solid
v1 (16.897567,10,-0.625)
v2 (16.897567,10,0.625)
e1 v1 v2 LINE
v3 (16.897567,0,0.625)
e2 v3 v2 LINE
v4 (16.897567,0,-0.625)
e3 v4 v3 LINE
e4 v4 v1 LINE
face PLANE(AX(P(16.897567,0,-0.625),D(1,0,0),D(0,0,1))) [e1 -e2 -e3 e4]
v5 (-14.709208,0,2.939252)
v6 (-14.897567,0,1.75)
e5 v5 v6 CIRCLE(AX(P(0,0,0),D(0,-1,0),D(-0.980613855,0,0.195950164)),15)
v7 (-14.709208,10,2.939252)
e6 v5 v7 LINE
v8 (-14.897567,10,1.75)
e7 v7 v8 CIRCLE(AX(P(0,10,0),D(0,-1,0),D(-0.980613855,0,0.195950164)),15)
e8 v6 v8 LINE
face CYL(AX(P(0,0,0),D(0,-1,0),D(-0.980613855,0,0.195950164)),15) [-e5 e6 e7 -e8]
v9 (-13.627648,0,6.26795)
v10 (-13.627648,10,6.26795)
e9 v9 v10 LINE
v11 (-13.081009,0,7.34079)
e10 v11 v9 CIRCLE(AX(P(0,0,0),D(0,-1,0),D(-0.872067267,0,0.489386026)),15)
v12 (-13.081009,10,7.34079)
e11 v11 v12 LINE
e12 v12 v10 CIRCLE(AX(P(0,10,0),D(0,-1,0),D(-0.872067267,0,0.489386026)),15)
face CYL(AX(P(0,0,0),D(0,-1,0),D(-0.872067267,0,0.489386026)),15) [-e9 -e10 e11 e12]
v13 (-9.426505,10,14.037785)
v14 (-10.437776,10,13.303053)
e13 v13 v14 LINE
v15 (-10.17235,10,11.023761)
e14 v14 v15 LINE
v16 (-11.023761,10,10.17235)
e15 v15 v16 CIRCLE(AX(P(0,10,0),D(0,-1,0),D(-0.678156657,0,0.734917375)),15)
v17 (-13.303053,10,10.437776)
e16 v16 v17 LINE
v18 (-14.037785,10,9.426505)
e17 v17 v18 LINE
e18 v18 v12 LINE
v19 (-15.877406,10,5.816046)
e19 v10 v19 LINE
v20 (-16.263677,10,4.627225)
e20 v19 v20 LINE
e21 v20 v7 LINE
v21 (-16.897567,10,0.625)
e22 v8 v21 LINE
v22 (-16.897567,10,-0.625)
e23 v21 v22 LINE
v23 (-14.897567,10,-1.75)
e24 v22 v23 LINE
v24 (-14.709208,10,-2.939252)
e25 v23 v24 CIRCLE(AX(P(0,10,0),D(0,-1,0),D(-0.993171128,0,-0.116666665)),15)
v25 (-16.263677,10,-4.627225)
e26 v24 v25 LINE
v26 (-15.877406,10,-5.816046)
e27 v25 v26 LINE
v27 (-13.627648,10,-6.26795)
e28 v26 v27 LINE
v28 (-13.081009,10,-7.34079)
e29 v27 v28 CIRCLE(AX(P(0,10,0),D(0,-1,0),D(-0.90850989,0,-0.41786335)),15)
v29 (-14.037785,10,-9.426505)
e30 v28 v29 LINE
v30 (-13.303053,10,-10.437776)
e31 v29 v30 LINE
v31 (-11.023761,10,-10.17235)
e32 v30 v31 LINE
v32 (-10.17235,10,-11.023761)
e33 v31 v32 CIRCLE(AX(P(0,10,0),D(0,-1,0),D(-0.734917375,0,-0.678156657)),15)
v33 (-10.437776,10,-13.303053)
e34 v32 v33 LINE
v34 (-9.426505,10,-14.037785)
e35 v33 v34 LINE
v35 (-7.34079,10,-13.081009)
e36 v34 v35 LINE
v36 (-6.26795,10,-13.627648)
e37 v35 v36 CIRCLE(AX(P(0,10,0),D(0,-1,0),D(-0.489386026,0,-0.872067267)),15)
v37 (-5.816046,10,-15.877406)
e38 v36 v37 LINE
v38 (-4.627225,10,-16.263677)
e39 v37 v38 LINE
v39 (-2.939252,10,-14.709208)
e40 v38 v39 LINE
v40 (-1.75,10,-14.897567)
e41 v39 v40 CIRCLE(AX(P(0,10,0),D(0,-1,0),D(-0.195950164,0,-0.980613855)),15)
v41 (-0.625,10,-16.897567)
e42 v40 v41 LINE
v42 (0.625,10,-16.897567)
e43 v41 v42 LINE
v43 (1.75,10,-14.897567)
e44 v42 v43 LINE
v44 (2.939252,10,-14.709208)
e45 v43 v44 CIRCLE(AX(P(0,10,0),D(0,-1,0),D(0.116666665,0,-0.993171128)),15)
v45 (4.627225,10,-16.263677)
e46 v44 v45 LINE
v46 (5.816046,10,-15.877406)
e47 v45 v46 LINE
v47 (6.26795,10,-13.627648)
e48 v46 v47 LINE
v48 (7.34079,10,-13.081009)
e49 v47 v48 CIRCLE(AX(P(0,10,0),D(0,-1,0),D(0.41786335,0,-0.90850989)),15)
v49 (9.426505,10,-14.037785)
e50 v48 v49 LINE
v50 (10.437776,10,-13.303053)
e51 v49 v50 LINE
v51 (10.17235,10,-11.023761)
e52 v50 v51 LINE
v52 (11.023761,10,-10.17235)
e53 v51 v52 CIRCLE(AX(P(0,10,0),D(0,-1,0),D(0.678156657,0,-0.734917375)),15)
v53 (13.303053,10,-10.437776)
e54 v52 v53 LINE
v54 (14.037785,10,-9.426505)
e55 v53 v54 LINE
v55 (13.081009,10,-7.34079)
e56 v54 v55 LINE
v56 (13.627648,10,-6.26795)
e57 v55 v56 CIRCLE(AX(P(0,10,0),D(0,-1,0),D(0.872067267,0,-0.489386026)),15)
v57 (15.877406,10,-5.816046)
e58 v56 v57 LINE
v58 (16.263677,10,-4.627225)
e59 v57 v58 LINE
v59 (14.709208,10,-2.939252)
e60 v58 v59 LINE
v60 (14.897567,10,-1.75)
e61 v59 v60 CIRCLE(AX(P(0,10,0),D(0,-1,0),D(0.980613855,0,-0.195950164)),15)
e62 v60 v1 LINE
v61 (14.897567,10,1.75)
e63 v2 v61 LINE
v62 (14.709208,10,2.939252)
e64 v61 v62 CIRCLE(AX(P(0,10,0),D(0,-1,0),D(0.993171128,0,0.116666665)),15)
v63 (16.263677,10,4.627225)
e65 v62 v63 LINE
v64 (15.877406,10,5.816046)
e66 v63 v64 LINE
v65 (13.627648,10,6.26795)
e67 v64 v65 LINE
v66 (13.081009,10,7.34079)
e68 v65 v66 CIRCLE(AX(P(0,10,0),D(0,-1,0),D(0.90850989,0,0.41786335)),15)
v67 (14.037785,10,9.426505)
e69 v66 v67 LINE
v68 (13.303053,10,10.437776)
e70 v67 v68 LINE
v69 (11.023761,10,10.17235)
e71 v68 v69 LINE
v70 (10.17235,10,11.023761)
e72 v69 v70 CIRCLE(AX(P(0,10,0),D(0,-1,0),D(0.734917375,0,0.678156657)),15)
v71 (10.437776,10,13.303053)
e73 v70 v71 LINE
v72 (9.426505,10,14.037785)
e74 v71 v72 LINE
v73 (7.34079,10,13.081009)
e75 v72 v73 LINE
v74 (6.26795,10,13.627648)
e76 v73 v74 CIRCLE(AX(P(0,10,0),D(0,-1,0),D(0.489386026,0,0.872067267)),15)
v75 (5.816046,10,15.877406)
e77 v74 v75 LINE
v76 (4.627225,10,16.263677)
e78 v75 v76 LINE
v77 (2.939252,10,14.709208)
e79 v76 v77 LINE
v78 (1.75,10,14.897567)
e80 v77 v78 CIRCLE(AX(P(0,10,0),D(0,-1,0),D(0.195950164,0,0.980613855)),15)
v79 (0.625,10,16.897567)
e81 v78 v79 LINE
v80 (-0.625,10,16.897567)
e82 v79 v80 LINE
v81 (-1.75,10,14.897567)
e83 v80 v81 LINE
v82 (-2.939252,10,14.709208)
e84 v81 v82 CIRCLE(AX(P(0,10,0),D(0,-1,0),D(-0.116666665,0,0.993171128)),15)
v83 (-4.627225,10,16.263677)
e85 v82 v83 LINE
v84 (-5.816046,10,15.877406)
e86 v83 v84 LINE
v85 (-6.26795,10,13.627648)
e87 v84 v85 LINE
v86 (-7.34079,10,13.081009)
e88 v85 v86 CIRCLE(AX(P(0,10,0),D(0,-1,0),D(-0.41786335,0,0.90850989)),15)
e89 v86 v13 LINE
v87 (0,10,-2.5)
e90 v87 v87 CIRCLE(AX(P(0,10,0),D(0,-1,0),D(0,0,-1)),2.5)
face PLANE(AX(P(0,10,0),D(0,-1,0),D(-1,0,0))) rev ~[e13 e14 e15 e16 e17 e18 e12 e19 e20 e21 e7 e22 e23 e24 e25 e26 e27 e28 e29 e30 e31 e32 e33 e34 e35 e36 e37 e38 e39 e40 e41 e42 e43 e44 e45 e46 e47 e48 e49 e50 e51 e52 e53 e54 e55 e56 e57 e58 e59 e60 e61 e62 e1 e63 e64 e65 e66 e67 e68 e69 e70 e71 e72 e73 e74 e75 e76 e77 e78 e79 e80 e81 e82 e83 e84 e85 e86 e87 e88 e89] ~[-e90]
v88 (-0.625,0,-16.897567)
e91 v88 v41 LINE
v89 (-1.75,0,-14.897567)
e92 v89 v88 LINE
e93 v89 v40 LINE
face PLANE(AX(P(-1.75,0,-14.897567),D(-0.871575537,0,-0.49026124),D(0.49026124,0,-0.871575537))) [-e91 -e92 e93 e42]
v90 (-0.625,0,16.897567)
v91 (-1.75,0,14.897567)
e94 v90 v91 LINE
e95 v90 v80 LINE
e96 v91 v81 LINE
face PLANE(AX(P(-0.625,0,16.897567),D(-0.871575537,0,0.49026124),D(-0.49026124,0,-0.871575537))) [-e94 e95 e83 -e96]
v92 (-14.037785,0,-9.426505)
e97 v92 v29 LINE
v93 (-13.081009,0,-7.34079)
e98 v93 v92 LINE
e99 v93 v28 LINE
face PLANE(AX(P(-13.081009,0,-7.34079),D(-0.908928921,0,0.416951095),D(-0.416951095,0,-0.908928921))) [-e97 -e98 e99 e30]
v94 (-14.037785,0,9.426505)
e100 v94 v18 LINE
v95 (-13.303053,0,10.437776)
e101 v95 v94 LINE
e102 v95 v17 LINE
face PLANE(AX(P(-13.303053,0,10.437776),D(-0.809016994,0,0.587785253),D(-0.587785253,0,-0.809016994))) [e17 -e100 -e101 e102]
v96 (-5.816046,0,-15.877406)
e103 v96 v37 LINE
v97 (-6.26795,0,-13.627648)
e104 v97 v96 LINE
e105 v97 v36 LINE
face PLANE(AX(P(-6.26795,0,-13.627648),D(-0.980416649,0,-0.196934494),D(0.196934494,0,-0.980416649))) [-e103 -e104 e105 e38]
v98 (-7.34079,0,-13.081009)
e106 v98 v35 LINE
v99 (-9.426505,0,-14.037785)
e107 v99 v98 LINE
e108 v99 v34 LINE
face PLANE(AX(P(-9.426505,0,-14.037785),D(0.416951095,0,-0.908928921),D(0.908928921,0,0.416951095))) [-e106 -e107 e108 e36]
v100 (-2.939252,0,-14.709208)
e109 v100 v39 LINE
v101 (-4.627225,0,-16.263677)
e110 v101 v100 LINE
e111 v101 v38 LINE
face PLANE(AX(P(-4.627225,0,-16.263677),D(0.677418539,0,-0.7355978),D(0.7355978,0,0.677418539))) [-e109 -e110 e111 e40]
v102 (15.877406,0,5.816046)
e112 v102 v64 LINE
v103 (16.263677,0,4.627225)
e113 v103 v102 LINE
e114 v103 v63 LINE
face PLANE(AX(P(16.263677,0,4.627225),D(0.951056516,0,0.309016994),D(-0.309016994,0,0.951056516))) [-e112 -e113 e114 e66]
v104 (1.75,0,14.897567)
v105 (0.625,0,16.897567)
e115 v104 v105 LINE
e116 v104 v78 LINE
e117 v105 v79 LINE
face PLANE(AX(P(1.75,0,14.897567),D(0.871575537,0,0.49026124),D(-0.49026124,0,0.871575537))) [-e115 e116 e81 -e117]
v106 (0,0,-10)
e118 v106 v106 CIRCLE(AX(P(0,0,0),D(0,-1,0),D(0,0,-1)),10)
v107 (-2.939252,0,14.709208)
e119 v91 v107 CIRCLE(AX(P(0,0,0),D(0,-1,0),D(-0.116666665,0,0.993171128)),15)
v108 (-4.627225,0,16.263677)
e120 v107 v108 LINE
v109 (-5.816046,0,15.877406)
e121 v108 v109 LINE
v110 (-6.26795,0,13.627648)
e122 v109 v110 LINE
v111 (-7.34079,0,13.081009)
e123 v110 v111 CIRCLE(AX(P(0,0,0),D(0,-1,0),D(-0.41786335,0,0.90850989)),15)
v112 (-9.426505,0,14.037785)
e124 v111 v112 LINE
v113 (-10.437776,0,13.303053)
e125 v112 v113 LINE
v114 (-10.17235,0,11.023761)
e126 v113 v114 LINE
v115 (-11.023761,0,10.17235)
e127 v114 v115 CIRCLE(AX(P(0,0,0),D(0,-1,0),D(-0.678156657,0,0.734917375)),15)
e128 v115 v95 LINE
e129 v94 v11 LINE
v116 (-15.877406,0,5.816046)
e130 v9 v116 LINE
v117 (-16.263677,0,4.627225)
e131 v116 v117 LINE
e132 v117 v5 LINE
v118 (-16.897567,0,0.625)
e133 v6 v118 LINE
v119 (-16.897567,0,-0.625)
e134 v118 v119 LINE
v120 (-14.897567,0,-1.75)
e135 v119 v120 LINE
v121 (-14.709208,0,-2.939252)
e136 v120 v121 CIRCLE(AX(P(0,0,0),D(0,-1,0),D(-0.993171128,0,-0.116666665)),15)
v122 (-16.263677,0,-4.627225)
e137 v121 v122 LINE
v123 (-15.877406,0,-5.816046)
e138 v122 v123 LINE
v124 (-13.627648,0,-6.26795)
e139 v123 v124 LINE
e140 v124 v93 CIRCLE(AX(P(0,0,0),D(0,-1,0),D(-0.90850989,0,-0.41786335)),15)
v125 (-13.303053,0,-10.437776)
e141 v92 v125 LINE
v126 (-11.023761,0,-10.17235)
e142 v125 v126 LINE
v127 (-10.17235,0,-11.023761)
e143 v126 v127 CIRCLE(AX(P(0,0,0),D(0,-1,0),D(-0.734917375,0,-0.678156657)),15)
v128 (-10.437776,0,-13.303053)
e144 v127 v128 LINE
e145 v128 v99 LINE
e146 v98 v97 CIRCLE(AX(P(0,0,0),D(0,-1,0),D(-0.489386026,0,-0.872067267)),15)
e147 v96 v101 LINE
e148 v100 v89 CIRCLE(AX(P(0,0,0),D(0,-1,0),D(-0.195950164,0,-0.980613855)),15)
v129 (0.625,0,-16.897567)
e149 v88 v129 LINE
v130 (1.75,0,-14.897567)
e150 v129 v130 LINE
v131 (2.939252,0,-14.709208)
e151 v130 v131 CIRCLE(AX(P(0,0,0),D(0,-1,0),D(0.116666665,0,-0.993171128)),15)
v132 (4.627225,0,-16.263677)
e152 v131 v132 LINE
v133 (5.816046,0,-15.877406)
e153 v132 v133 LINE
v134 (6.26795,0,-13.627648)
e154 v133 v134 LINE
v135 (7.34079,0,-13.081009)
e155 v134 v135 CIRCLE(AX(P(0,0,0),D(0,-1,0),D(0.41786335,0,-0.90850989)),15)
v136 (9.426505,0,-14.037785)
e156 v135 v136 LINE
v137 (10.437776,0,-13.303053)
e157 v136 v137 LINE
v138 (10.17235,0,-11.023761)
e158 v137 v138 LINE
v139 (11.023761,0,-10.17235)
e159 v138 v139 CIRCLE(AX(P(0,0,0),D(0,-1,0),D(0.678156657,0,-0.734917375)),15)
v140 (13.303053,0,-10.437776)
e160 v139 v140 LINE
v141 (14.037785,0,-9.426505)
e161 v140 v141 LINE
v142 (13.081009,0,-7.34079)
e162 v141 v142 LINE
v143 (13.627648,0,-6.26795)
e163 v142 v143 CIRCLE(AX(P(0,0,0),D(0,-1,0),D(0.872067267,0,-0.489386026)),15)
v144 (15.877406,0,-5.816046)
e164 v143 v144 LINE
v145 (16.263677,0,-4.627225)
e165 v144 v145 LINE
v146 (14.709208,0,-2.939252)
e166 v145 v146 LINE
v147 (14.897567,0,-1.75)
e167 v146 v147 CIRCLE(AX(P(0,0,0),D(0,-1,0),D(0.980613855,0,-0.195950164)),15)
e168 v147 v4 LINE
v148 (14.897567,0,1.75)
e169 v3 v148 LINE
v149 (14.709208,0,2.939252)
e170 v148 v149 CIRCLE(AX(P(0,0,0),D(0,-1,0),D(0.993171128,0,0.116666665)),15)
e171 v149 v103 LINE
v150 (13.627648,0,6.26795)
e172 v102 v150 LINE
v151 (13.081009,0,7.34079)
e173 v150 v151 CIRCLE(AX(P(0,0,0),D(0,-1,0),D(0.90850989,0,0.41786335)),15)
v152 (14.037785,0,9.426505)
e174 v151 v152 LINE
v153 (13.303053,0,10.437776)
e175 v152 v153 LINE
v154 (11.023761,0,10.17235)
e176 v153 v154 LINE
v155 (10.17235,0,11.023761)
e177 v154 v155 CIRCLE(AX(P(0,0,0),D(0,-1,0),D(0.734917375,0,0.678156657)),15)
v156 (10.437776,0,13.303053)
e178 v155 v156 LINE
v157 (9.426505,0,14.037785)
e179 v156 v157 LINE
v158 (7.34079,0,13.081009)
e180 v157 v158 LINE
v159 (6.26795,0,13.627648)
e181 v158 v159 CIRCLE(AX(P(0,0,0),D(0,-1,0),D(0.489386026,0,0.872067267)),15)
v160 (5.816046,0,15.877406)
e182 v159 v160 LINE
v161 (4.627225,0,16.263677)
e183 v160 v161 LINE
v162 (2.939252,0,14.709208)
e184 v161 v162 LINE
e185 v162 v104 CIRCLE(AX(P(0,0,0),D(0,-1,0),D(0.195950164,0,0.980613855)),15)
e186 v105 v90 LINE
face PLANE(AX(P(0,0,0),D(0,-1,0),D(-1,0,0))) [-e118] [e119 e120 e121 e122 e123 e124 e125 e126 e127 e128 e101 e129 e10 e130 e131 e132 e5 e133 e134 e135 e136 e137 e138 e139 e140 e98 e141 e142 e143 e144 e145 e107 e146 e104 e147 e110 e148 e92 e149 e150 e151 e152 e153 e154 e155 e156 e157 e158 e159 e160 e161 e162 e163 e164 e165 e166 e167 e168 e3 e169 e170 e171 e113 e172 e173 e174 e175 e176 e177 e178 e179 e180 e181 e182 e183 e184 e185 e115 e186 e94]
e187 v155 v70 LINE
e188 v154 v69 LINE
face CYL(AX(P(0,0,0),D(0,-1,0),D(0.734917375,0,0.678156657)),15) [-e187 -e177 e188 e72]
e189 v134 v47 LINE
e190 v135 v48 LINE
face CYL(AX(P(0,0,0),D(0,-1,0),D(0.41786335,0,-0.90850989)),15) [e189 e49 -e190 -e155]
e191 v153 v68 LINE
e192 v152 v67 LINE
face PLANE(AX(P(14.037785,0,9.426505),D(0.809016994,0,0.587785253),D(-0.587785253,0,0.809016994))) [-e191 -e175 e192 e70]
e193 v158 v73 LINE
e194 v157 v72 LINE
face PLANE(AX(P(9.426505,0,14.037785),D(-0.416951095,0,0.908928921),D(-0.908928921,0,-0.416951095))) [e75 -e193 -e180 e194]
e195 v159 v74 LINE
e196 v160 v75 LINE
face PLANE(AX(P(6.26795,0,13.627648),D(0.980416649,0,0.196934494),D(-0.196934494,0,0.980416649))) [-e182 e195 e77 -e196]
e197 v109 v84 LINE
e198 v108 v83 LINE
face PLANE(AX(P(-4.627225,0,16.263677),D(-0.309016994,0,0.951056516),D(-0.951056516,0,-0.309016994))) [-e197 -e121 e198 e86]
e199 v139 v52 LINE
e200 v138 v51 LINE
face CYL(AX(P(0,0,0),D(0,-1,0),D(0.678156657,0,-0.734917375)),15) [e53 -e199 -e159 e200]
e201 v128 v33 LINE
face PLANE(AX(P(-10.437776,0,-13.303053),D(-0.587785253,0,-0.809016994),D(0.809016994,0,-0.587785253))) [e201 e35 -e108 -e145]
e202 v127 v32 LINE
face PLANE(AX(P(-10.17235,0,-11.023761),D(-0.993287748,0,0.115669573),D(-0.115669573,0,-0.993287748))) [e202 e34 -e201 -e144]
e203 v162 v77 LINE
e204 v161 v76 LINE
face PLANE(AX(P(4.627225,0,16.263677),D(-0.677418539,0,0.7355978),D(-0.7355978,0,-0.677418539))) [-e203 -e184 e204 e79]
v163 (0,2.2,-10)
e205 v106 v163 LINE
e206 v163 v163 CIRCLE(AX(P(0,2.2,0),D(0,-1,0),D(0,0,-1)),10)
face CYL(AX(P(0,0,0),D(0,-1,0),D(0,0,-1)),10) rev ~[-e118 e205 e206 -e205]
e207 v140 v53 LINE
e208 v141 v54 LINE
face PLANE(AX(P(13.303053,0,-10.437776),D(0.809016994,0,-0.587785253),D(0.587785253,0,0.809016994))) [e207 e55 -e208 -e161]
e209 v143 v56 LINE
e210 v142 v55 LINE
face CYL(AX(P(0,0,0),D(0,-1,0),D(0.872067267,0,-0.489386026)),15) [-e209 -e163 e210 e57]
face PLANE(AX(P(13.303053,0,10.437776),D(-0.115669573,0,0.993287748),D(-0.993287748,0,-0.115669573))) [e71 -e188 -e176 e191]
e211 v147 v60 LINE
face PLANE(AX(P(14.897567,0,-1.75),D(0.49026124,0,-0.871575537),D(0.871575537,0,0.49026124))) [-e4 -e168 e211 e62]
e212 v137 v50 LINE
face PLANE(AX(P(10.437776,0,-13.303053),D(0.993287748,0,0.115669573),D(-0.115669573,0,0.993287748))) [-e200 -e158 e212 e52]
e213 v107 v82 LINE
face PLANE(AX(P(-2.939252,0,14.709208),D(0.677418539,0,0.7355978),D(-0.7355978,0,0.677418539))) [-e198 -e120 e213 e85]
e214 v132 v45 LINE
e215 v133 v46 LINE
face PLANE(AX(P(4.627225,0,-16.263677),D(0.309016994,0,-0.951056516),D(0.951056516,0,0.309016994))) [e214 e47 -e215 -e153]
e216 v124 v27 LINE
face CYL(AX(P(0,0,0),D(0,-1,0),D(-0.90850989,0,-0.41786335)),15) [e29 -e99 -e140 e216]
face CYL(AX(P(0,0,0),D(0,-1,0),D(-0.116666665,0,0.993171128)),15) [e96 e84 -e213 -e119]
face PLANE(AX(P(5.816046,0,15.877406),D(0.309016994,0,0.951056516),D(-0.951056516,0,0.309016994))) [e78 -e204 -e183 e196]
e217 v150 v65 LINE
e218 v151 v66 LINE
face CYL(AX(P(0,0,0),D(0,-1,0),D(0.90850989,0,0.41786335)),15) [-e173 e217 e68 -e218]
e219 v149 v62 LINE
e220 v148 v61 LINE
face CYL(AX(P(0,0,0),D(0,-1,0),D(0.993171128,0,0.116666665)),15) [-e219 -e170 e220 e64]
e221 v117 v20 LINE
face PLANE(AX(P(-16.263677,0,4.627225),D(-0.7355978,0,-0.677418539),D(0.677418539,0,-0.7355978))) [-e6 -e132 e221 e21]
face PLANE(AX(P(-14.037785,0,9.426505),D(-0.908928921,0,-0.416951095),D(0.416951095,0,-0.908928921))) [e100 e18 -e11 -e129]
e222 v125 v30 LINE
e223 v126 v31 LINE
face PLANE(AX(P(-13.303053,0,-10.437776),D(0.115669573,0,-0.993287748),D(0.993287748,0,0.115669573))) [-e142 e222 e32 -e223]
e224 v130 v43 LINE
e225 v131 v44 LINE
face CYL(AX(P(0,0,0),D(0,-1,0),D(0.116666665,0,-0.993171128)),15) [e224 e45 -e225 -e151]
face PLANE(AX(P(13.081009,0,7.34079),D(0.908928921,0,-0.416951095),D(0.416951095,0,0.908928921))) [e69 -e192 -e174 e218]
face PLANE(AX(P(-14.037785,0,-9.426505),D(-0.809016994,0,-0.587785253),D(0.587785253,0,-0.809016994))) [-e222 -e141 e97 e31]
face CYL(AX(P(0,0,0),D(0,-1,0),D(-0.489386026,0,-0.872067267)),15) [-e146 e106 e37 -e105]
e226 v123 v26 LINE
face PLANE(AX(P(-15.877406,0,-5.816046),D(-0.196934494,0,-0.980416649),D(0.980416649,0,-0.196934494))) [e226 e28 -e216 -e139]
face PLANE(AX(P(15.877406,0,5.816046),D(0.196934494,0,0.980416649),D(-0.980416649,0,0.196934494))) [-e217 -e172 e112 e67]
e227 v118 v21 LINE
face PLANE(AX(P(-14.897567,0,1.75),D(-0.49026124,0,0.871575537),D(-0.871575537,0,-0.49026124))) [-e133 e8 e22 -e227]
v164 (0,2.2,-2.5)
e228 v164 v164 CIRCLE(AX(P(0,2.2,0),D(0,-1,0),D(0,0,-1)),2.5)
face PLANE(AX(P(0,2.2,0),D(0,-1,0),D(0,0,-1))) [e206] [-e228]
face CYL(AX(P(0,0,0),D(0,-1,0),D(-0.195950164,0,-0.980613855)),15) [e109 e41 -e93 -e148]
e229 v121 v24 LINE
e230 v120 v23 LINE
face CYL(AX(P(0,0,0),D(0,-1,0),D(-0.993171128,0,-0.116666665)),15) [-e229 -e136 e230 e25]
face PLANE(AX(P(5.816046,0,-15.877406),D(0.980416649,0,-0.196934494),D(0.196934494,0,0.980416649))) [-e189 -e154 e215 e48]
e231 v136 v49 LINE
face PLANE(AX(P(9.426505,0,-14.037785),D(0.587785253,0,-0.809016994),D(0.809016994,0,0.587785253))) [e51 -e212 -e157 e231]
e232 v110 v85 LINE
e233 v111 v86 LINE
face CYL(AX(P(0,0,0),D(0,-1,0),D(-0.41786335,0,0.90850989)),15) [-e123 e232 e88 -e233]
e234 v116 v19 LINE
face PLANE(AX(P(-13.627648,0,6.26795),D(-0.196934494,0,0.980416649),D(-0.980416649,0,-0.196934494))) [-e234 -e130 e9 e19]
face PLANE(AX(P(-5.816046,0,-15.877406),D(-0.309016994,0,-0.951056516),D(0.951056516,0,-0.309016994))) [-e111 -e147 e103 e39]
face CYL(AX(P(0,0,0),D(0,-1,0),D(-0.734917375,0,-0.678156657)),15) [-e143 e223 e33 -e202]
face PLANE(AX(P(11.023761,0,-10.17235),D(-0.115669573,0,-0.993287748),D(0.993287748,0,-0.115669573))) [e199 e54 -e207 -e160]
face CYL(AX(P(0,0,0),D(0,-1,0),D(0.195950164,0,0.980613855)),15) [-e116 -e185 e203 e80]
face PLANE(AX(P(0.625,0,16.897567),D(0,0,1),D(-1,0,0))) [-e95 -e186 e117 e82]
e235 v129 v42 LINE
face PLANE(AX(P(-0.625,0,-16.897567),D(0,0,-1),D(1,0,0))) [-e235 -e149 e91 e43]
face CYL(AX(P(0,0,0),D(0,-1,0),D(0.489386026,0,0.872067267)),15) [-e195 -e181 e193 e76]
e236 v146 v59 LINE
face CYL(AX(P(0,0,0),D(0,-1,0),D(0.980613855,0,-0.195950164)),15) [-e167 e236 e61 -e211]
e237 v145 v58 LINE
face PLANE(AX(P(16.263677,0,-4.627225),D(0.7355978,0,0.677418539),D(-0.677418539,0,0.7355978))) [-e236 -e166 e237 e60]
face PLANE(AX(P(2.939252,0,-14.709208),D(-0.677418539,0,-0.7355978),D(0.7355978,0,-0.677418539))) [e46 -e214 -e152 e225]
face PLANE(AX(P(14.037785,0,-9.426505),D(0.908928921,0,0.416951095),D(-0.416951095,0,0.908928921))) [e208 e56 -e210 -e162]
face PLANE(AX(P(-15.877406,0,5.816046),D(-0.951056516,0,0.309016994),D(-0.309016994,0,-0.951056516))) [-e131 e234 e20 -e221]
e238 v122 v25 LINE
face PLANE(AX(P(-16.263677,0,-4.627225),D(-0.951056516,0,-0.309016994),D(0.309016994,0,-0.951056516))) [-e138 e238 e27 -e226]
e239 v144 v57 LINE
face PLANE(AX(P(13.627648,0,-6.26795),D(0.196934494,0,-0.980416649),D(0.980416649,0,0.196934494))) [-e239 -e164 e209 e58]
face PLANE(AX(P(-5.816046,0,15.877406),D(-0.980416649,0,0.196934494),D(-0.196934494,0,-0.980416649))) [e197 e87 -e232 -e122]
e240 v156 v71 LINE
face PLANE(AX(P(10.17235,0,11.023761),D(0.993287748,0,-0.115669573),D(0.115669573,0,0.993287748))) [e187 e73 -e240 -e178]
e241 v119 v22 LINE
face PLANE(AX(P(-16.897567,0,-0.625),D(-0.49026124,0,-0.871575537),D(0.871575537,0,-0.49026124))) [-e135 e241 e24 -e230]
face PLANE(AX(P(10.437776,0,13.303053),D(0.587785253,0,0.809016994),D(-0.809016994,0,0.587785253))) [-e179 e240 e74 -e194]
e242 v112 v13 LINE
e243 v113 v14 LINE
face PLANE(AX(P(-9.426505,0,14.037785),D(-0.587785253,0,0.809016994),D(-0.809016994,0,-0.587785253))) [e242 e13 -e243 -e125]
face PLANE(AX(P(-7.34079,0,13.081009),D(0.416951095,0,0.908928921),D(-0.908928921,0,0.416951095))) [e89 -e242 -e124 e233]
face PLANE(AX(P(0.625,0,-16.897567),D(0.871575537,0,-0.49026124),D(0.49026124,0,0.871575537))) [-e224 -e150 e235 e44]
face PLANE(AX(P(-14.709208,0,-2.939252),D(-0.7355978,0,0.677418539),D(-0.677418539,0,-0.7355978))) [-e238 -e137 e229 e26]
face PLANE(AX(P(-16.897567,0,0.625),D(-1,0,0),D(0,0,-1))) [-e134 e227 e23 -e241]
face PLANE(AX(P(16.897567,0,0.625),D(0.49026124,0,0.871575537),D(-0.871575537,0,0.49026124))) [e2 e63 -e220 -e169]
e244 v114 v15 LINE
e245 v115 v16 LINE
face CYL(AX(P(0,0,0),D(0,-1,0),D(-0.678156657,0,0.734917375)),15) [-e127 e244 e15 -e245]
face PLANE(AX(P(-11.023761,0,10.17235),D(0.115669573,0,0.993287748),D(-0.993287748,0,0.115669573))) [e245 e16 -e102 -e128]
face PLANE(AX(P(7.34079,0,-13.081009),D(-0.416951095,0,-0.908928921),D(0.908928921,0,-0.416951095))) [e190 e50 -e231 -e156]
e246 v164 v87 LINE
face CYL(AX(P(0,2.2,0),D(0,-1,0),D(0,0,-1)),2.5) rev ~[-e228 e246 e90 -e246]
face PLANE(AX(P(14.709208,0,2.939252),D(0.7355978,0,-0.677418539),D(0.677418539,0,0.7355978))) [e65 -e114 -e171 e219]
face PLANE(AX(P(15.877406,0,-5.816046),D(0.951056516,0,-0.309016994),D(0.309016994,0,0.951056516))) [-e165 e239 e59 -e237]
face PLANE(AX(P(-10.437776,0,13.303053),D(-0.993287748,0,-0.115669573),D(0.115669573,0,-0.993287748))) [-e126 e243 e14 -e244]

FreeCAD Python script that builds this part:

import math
import FreeCAD as App
import Part
import Sketcher
from FreeCAD import Vector
Q = App.Units.Quantity

doc = App.newDocument("Part")
body = doc.addObject("PartDesign::Body", "Body")

# Sketch on XZ plane
sketch1 = body.newObject("Sketcher::SketchObject", "Sketch")
sketch1.AttachmentSupport = (doc.getObject("XZ_Plane"), [""])
sketch1.MapMode = "FlatFace"
sketch1.addGeometry(Part.LineSegment(Vector(0.6, -16.9, 0), Vector(-0.6, -16.9, 0)), False)
sketch1.addGeometry(Part.LineSegment(Vector(-0.6, -16.9, 0), Vector(-1.8, -14.9, 0)), False)
sketch1.addGeometry(Part.ArcOfCircle(Part.Circle(Vector(0, 0, 0), Vector(0, 0, 1), 15), math.radians(-101.3), math.radians(-96.7)), False)
sketch1.addGeometry(Part.LineSegment(Vector(-2.9, -14.7, 0), Vector(-4.6, -16.3, 0)), False)
sketch1.addGeometry(Part.LineSegment(Vector(-4.6, -16.3, 0), Vector(-5.8, -15.9, 0)), False)
sketch1.addGeometry(Part.LineSegment(Vector(-5.8, -15.9, 0), Vector(-6.3, -13.6, 0)), False)
sketch1.addGeometry(Part.ArcOfCircle(Part.Circle(Vector(0, 0, 0), Vector(0, 0, 1), 15), math.radians(-119.3), math.radians(-114.7)), False)
sketch1.addGeometry(Part.LineSegment(Vector(-7.3, -13.1, 0), Vector(-9.4, -14, 0)), False)
sketch1.addGeometry(Part.LineSegment(Vector(-9.4, -14, 0), Vector(-10.4, -13.3, 0)), False)
sketch1.addGeometry(Part.LineSegment(Vector(-10.4, -13.3, 0), Vector(-10.2, -11, 0)), False)
sketch1.addGeometry(Part.ArcOfCircle(Part.Circle(Vector(0, 0, 0), Vector(0, 0, 1), 15), math.radians(-137.3), math.radians(-132.7)), False)
sketch1.addGeometry(Part.LineSegment(Vector(-11, -10.2, 0), Vector(-13.3, -10.4, 0)), False)
sketch1.addGeometry(Part.LineSegment(Vector(-13.3, -10.4, 0), Vector(-14, -9.4, 0)), False)
sketch1.addGeometry(Part.LineSegment(Vector(-14, -9.4, 0), Vector(-13.1, -7.3, 0)), False)
sketch1.addGeometry(Part.ArcOfCircle(Part.Circle(Vector(0, 0, 0), Vector(0, 0, 1), 15), math.radians(-155.3), math.radians(-150.7)), False)
sketch1.addGeometry(Part.LineSegment(Vector(-13.6, -6.3, 0), Vector(-15.9, -5.8, 0)), False)
sketch1.addGeometry(Part.LineSegment(Vector(-15.9, -5.8, 0), Vector(-16.3, -4.6, 0)), False)
sketch1.addGeometry(Part.LineSegment(Vector(-16.3, -4.6, 0), Vector(-14.7, -2.9, 0)), False)
sketch1.addGeometry(Part.ArcOfCircle(Part.Circle(Vector(0, 0, 0), Vector(0, 0, 1), 15), math.radians(-173.3), math.radians(-168.7)), False)
sketch1.addGeometry(Part.LineSegment(Vector(-14.9, -1.8, 0), Vector(-16.9, -0.6, 0)), False)
sketch1.addGeometry(Part.LineSegment(Vector(-16.9, -0.6, 0), Vector(-16.9, 0.6, 0)), False)
sketch1.addGeometry(Part.LineSegment(Vector(-16.9, 0.6, 0), Vector(-14.9, 1.8, 0)), False)
sketch1.addGeometry(Part.ArcOfCircle(Part.Circle(Vector(0, 0, 0), Vector(0, 0, 1), 15), math.radians(168.7), math.radians(173.3)), False)
sketch1.addGeometry(Part.LineSegment(Vector(-14.7, 2.9, 0), Vector(-16.3, 4.6, 0)), False)
sketch1.addGeometry(Part.LineSegment(Vector(-16.3, 4.6, 0), Vector(-15.9, 5.8, 0)), False)
sketch1.addGeometry(Part.LineSegment(Vector(-15.9, 5.8, 0), Vector(-13.6, 6.3, 0)), False)
sketch1.addGeometry(Part.ArcOfCircle(Part.Circle(Vector(0, 0, 0), Vector(0, 0, 1), 15), math.radians(150.7), math.radians(155.3)), False)
sketch1.addGeometry(Part.LineSegment(Vector(-13.1, 7.3, 0), Vector(-14, 9.4, 0)), False)
sketch1.addGeometry(Part.LineSegment(Vector(-14, 9.4, 0), Vector(-13.3, 10.4, 0)), False)
sketch1.addGeometry(Part.LineSegment(Vector(-13.3, 10.4, 0), Vector(-11, 10.2, 0)), False)
sketch1.addGeometry(Part.ArcOfCircle(Part.Circle(Vector(0, 0, 0), Vector(0, 0, 1), 15), math.radians(132.7), math.radians(137.3)), False)
sketch1.addGeometry(Part.LineSegment(Vector(-10.2, 11, 0), Vector(-10.4, 13.3, 0)), False)
sketch1.addGeometry(Part.LineSegment(Vector(-10.4, 13.3, 0), Vector(-9.4, 14, 0)), False)
sketch1.addGeometry(Part.LineSegment(Vector(-9.4, 14, 0), Vector(-7.3, 13.1, 0)), False)
sketch1.addGeometry(Part.ArcOfCircle(Part.Circle(Vector(0, 0, 0), Vector(0, 0, 1), 15), math.radians(114.7), math.radians(119.3)), False)
sketch1.addGeometry(Part.LineSegment(Vector(-6.3, 13.6, 0), Vector(-5.8, 15.9, 0)), False)
sketch1.addGeometry(Part.LineSegment(Vector(-5.8, 15.9, 0), Vector(-4.6, 16.3, 0)), False)
sketch1.addGeometry(Part.LineSegment(Vector(-4.6, 16.3, 0), Vector(-2.9, 14.7, 0)), False)
sketch1.addGeometry(Part.ArcOfCircle(Part.Circle(Vector(0, 0, 0), Vector(0, 0, 1), 15), math.radians(96.7), math.radians(101.3)), False)
sketch1.addGeometry(Part.LineSegment(Vector(-1.8, 14.9, 0), Vector(-0.6, 16.9, 0)), False)
sketch1.addGeometry(Part.LineSegment(Vector(-0.6, 16.9, 0), Vector(0.6, 16.9, 0)), False)
sketch1.addGeometry(Part.LineSegment(Vector(0.6, 16.9, 0), Vector(1.8, 14.9, 0)), False)
sketch1.addGeometry(Part.ArcOfCircle(Part.Circle(Vector(0, 0, 0), Vector(0, 0, 1), 15), math.radians(78.7), math.radians(83.3)), False)
sketch1.addGeometry(Part.LineSegment(Vector(2.9, 14.7, 0), Vector(4.6, 16.3, 0)), False)
sketch1.addGeometry(Part.LineSegment(Vector(4.6, 16.3, 0), Vector(5.8, 15.9, 0)), False)
sketch1.addGeometry(Part.LineSegment(Vector(5.8, 15.9, 0), Vector(6.3, 13.6, 0)), False)
sketch1.addGeometry(Part.ArcOfCircle(Part.Circle(Vector(0, 0, 0), Vector(0, 0, 1), 15), math.radians(60.7), math.radians(65.3)), False)
sketch1.addGeometry(Part.LineSegment(Vector(7.3, 13.1, 0), Vector(9.4, 14, 0)), False)
sketch1.addGeometry(Part.LineSegment(Vector(9.4, 14, 0), Vector(10.4, 13.3, 0)), False)
sketch1.addGeometry(Part.LineSegment(Vector(10.4, 13.3, 0), Vector(10.2, 11, 0)), False)
sketch1.addGeometry(Part.ArcOfCircle(Part.Circle(Vector(0, 0, 0), Vector(0, 0, 1), 15), math.radians(42.7), math.radians(47.3)), False)
sketch1.addGeometry(Part.LineSegment(Vector(11, 10.2, 0), Vector(13.3, 10.4, 0)), False)
sketch1.addGeometry(Part.LineSegment(Vector(13.3, 10.4, 0), Vector(14, 9.4, 0)), False)
sketch1.addGeometry(Part.LineSegment(Vector(14, 9.4, 0), Vector(13.1, 7.3, 0)), False)
sketch1.addGeometry(Part.ArcOfCircle(Part.Circle(Vector(0, 0, 0), Vector(0, 0, 1), 15), math.radians(24.7), math.radians(29.3)), False)
sketch1.addGeometry(Part.LineSegment(Vector(13.6, 6.3, 0), Vector(15.9, 5.8, 0)), False)
sketch1.addGeometry(Part.LineSegment(Vector(15.9, 5.8, 0), Vector(16.3, 4.6, 0)), False)
sketch1.addGeometry(Part.LineSegment(Vector(16.3, 4.6, 0), Vector(14.7, 2.9, 0)), False)
sketch1.addGeometry(Part.ArcOfCircle(Part.Circle(Vector(0, 0, 0), Vector(0, 0, 1), 15), math.radians(6.7), math.radians(11.3)), False)
sketch1.addGeometry(Part.LineSegment(Vector(14.9, 1.8, 0), Vector(16.9, 0.6, 0)), False)
sketch1.addGeometry(Part.LineSegment(Vector(16.9, 0.6, 0), Vector(16.9, -0.6, 0)), False)
sketch1.addGeometry(Part.LineSegment(Vector(16.9, -0.6, 0), Vector(14.9, -1.8, 0)), False)
sketch1.addGeometry(Part.ArcOfCircle(Part.Circle(Vector(0, 0, 0), Vector(0, 0, 1), 15), math.radians(-11.3), math.radians(-6.7)), False)
sketch1.addGeometry(Part.LineSegment(Vector(14.7, -2.9, 0), Vector(16.3, -4.6, 0)), False)
sketch1.addGeometry(Part.LineSegment(Vector(16.3, -4.6, 0), Vector(15.9, -5.8, 0)), False)
sketch1.addGeometry(Part.LineSegment(Vector(15.9, -5.8, 0), Vector(13.6, -6.3, 0)), False)
sketch1.addGeometry(Part.ArcOfCircle(Part.Circle(Vector(0, 0, 0), Vector(0, 0, 1), 15), math.radians(-29.3), math.radians(-24.7)), False)
sketch1.addGeometry(Part.LineSegment(Vector(13.1, -7.3, 0), Vector(14, -9.4, 0)), False)
sketch1.addGeometry(Part.LineSegment(Vector(14, -9.4, 0), Vector(13.3, -10.4, 0)), False)
sketch1.addGeometry(Part.LineSegment(Vector(13.3, -10.4, 0), Vector(11, -10.2, 0)), False)
sketch1.addGeometry(Part.ArcOfCircle(Part.Circle(Vector(0, 0, 0), Vector(0, 0, 1), 15), math.radians(-47.3), math.radians(-42.7)), False)
sketch1.addGeometry(Part.LineSegment(Vector(10.2, -11, 0), Vector(10.4, -13.3, 0)), False)
sketch1.addGeometry(Part.LineSegment(Vector(10.4, -13.3, 0), Vector(9.4, -14, 0)), False)
sketch1.addGeometry(Part.LineSegment(Vector(9.4, -14, 0), Vector(7.3, -13.1, 0)), False)
sketch1.addGeometry(Part.ArcOfCircle(Part.Circle(Vector(0, 0, 0), Vector(0, 0, 1), 15), math.radians(-65.3), math.radians(-60.7)), False)
sketch1.addGeometry(Part.LineSegment(Vector(6.3, -13.6, 0), Vector(5.8, -15.9, 0)), False)
sketch1.addGeometry(Part.LineSegment(Vector(5.8, -15.9, 0), Vector(4.6, -16.3, 0)), False)
sketch1.addGeometry(Part.LineSegment(Vector(4.6, -16.3, 0), Vector(2.9, -14.7, 0)), False)
sketch1.addGeometry(Part.ArcOfCircle(Part.Circle(Vector(0, 0, 0), Vector(0, 0, 1), 15), math.radians(-83.3), math.radians(-78.7)), False)
sketch1.addGeometry(Part.LineSegment(Vector(1.8, -14.9, 0), Vector(0.6, -16.9, 0)), False)
sketch1.addConstraint(Sketcher.Constraint("Coincident", 0, 2, 1, 1))
sketch1.addConstraint(Sketcher.Constraint("Coincident", 1, 2, 2, 2))
sketch1.addConstraint(Sketcher.Constraint("Coincident", 2, 1, 3, 1))
sketch1.addConstraint(Sketcher.Constraint("Coincident", 3, 2, 4, 1))
sketch1.addConstraint(Sketcher.Constraint("Coincident", 4, 2, 5, 1))
sketch1.addConstraint(Sketcher.Constraint("Coincident", 5, 2, 6, 2))
sketch1.addConstraint(Sketcher.Constraint("Coincident", 6, 1, 7, 1))
sketch1.addConstraint(Sketcher.Constraint("Coincident", 7, 2, 8, 1))
sketch1.addConstraint(Sketcher.Constraint("Coincident", 8, 2, 9, 1))
sketch1.addConstraint(Sketcher.Constraint("Coincident", 9, 2, 10, 2))
sketch1.addConstraint(Sketcher.Constraint("Coincident", 10, 1, 11, 1))
sketch1.addConstraint(Sketcher.Constraint("Coincident", 11, 2, 12, 1))
sketch1.addConstraint(Sketcher.Constraint("Coincident", 12, 2, 13, 1))
sketch1.addConstraint(Sketcher.Constraint("Coincident", 13, 2, 14, 2))
sketch1.addConstraint(Sketcher.Constraint("Coincident", 14, 1, 15, 1))
sketch1.addConstraint(Sketcher.Constraint("Coincident", 15, 2, 16, 1))
sketch1.addConstraint(Sketcher.Constraint("Coincident", 16, 2, 17, 1))
sketch1.addConstraint(Sketcher.Constraint("Coincident", 17, 2, 18, 2))
sketch1.addConstraint(Sketcher.Constraint("Coincident", 18, 1, 19, 1))
sketch1.addConstraint(Sketcher.Constraint("Coincident", 19, 2, 20, 1))
sketch1.addConstraint(Sketcher.Constraint("Coincident", 20, 2, 21, 1))
sketch1.addConstraint(Sketcher.Constraint("Coincident", 21, 2, 22, 2))
sketch1.addConstraint(Sketcher.Constraint("Coincident", 22, 1, 23, 1))
sketch1.addConstraint(Sketcher.Constraint("Coincident", 23, 2, 24, 1))
sketch1.addConstraint(Sketcher.Constraint("Coincident", 24, 2, 25, 1))
sketch1.addConstraint(Sketcher.Constraint("Coincident", 25, 2, 26, 2))
sketch1.addConstraint(Sketcher.Constraint("Coincident", 26, 1, 27, 1))
sketch1.addConstraint(Sketcher.Constraint("Coincident", 27, 2, 28, 1))
sketch1.addConstraint(Sketcher.Constraint("Coincident", 28, 2, 29, 1))
sketch1.addConstraint(Sketcher.Constraint("Coincident", 29, 2, 30, 2))
sketch1.addConstraint(Sketcher.Constraint("Coincident", 30, 1, 31, 1))
sketch1.addConstraint(Sketcher.Constraint("Coincident", 31, 2, 32, 1))
sketch1.addConstraint(Sketcher.Constraint("Coincident", 32, 2, 33, 1))
sketch1.addConstraint(Sketcher.Constraint("Coincident", 33, 2, 34, 2))
sketch1.addConstraint(Sketcher.Constraint("Coincident", 34, 1, 35, 1))
sketch1.addConstraint(Sketcher.Constraint("Coincident", 35, 2, 36, 1))
sketch1.addConstraint(Sketcher.Constraint("Coincident", 36, 2, 37, 1))
sketch1.addConstraint(Sketcher.Constraint("Coincident", 37, 2, 38, 2))
sketch1.addConstraint(Sketcher.Constraint("Coincident", 38, 1, 39, 1))
sketch1.addConstraint(Sketcher.Constraint("Coincident", 39, 2, 40, 1))
sketch1.addConstraint(Sketcher.Constraint("Coincident", 40, 2, 41, 1))
sketch1.addConstraint(Sketcher.Constraint("Coincident", 41, 2, 42, 2))
sketch1.addConstraint(Sketcher.Constraint("Coincident", 42, 1, 43, 1))
sketch1.addConstraint(Sketcher.Constraint("Coincident", 43, 2, 44, 1))
sketch1.addConstraint(Sketcher.Constraint("Coincident", 44, 2, 45, 1))
sketch1.addConstraint(Sketcher.Constraint("Coincident", 45, 2, 46, 2))
sketch1.addConstraint(Sketcher.Constraint("Coincident", 46, 1, 47, 1))
sketch1.addConstraint(Sketcher.Constraint("Coincident", 47, 2, 48, 1))
sketch1.addConstraint(Sketcher.Constraint("Coincident", 48, 2, 49, 1))
sketch1.addConstraint(Sketcher.Constraint("Coincident", 49, 2, 50, 2))
sketch1.addConstraint(Sketcher.Constraint("Coincident", 50, 1, 51, 1))
sketch1.addConstraint(Sketcher.Constraint("Coincident", 51, 2, 52, 1))
sketch1.addConstraint(Sketcher.Constraint("Coincident", 52, 2, 53, 1))
sketch1.addConstraint(Sketcher.Constraint("Coincident", 53, 2, 54, 2))
sketch1.addConstraint(Sketcher.Constraint("Coincident", 54, 1, 55, 1))
sketch1.addConstraint(Sketcher.Constraint("Coincident", 55, 2, 56, 1))
sketch1.addConstraint(Sketcher.Constraint("Coincident", 56, 2, 57, 1))
sketch1.addConstraint(Sketcher.Constraint("Coincident", 57, 2, 58, 2))
sketch1.addConstraint(Sketcher.Constraint("Coincident", 58, 1, 59, 1))
sketch1.addConstraint(Sketcher.Constraint("Coincident", 59, 2, 60, 1))
sketch1.addConstraint(Sketcher.Constraint("Coincident", 60, 2, 61, 1))
sketch1.addConstraint(Sketcher.Constraint("Coincident", 61, 2, 62, 2))
sketch1.addConstraint(Sketcher.Constraint("Coincident", 62, 1, 63, 1))
sketch1.addConstraint(Sketcher.Constraint("Coincident", 63, 2, 64, 1))
sketch1.addConstraint(Sketcher.Constraint("Coincident", 64, 2, 65, 1))
sketch1.addConstraint(Sketcher.Constraint("Coincident", 65, 2, 66, 2))
sketch1.addConstraint(Sketcher.Constraint("Coincident", 66, 1, 67, 1))
sketch1.addConstraint(Sketcher.Constraint("Coincident", 67, 2, 68, 1))
sketch1.addConstraint(Sketcher.Constraint("Coincident", 68, 2, 69, 1))
sketch1.addConstraint(Sketcher.Constraint("Coincident", 69, 2, 70, 2))
sketch1.addConstraint(Sketcher.Constraint("Coincident", 70, 1, 71, 1))
sketch1.addConstraint(Sketcher.Constraint("Coincident", 71, 2, 72, 1))
sketch1.addConstraint(Sketcher.Constraint("Coincident", 72, 2, 73, 1))
sketch1.addConstraint(Sketcher.Constraint("Coincident", 73, 2, 74, 2))
sketch1.addConstraint(Sketcher.Constraint("Coincident", 74, 1, 75, 1))
sketch1.addConstraint(Sketcher.Constraint("Coincident", 75, 2, 76, 1))
sketch1.addConstraint(Sketcher.Constraint("Coincident", 76, 2, 77, 1))
sketch1.addConstraint(Sketcher.Constraint("Coincident", 77, 2, 78, 2))
sketch1.addConstraint(Sketcher.Constraint("Coincident", 78, 1, 79, 1))
sketch1.addConstraint(Sketcher.Constraint("Coincident", 79, 2, 0, 1))
sketch1.addConstraint(Sketcher.Constraint("Horizontal", 0))
sketch1.addConstraint(Sketcher.Constraint("Vertical", 20))
sketch1.addConstraint(Sketcher.Constraint("Horizontal", 40))
sketch1.addConstraint(Sketcher.Constraint("Vertical", 60))
sketch1.addConstraint(Sketcher.Constraint("Coincident", 2, 3, -1, 1))
sketch1.addConstraint(Sketcher.Constraint("Coincident", 6, 3, -1, 1))
sketch1.addConstraint(Sketcher.Constraint("Coincident", 10, 3, -1, 1))
sketch1.addConstraint(Sketcher.Constraint("Coincident", 14, 3, -1, 1))
sketch1.addConstraint(Sketcher.Constraint("Coincident", 18, 3, -1, 1))
sketch1.addConstraint(Sketcher.Constraint("Coincident", 22, 3, -1, 1))
sketch1.addConstraint(Sketcher.Constraint("Coincident", 26, 3, -1, 1))
sketch1.addConstraint(Sketcher.Constraint("Coincident", 30, 3, -1, 1))
sketch1.addConstraint(Sketcher.Constraint("Coincident", 34, 3, -1, 1))
sketch1.addConstraint(Sketcher.Constraint("Coincident", 38, 3, -1, 1))
sketch1.addConstraint(Sketcher.Constraint("Coincident", 42, 3, -1, 1))
sketch1.addConstraint(Sketcher.Constraint("Coincident", 46, 3, -1, 1))
sketch1.addConstraint(Sketcher.Constraint("Coincident", 50, 3, -1, 1))
sketch1.addConstraint(Sketcher.Constraint("Coincident", 54, 3, -1, 1))
sketch1.addConstraint(Sketcher.Constraint("Coincident", 58, 3, -1, 1))
sketch1.addConstraint(Sketcher.Constraint("Coincident", 62, 3, -1, 1))
sketch1.addConstraint(Sketcher.Constraint("Coincident", 66, 3, -1, 1))
sketch1.addConstraint(Sketcher.Constraint("Coincident", 70, 3, -1, 1))
sketch1.addConstraint(Sketcher.Constraint("Coincident", 74, 3, -1, 1))
sketch1.addConstraint(Sketcher.Constraint("Coincident", 78, 3, -1, 1))
sketch1.addConstraint(Sketcher.Constraint("Equal", 2, 6))
sketch1.addConstraint(Sketcher.Constraint("Equal", 6, 10))
sketch1.addConstraint(Sketcher.Constraint("Equal", 10, 14))
sketch1.addConstraint(Sketcher.Constraint("Equal", 14, 18))
sketch1.addConstraint(Sketcher.Constraint("Equal", 18, 22))
sketch1.addConstraint(Sketcher.Constraint("Equal", 22, 26))
sketch1.addConstraint(Sketcher.Constraint("Equal", 26, 30))
sketch1.addConstraint(Sketcher.Constraint("Equal", 30, 34))
sketch1.addConstraint(Sketcher.Constraint("Equal", 34, 38))
sketch1.addConstraint(Sketcher.Constraint("Equal", 38, 42))
sketch1.addConstraint(Sketcher.Constraint("Equal", 42, 46))
sketch1.addConstraint(Sketcher.Constraint("Equal", 46, 50))
sketch1.addConstraint(Sketcher.Constraint("Equal", 50, 54))
sketch1.addConstraint(Sketcher.Constraint("Equal", 54, 58))
sketch1.addConstraint(Sketcher.Constraint("Equal", 58, 62))
sketch1.addConstraint(Sketcher.Constraint("Equal", 62, 66))
sketch1.addConstraint(Sketcher.Constraint("Equal", 66, 70))
sketch1.addConstraint(Sketcher.Constraint("Equal", 70, 74))
sketch1.addConstraint(Sketcher.Constraint("Equal", 74, 78))
sketch1.addConstraint(Sketcher.Constraint("Symmetric", 0, 2, 40, 2, -1, 1))
sketch1.addConstraint(Sketcher.Constraint("Symmetric", 3, 2, 43, 2, -1, 1))
sketch1.addConstraint(Sketcher.Constraint("Symmetric", 4, 2, 44, 2, -1, 1))
sketch1.addConstraint(Sketcher.Constraint("Symmetric", 7, 2, 47, 2, -1, 1))
sketch1.addConstraint(Sketcher.Constraint("Symmetric", 8, 2, 48, 2, -1, 1))
sketch1.addConstraint(Sketcher.Constraint("Symmetric", 11, 2, 51, 2, -1, 1))
sketch1.addConstraint(Sketcher.Constraint("Symmetric", 12, 2, 52, 2, -1, 1))
sketch1.addConstraint(Sketcher.Constraint("Symmetric", 15, 2, 55, 2, -1, 1))
sketch1.addConstraint(Sketcher.Constraint("Symmetric", 16, 2, 56, 2, -1, 1))
sketch1.addConstraint(Sketcher.Constraint("Symmetric", 19, 2, 59, 2, -1, 1))
sketch1.addConstraint(Sketcher.Constraint("Symmetric", 23, 2, 63, 2, -1, 1))
sketch1.addConstraint(Sketcher.Constraint("Symmetric", 24, 2, 64, 2, -1, 1))
sketch1.addConstraint(Sketcher.Constraint("Symmetric", 27, 2, 67, 2, -1, 1))
sketch1.addConstraint(Sketcher.Constraint("Symmetric", 28, 2, 68, 2, -1, 1))
sketch1.addConstraint(Sketcher.Constraint("Symmetric", 31, 2, 71, 2, -1, 1))
sketch1.addConstraint(Sketcher.Constraint("Symmetric", 32, 2, 72, 2, -1, 1))
sketch1.addConstraint(Sketcher.Constraint("Symmetric", 35, 2, 75, 2, -1, 1))
sketch1.addConstraint(Sketcher.Constraint("Symmetric", 36, 2, 76, 2, -1, 1))
sketch1.addConstraint(Sketcher.Constraint("Symmetric", 36, 2, 43, 2, -2))
sketch1.addConstraint(Sketcher.Constraint("Symmetric", 35, 2, 44, 2, -2))
sketch1.addConstraint(Sketcher.Constraint("Symmetric", 32, 2, 47, 2, -2))
sketch1.addConstraint(Sketcher.Constraint("Symmetric", 31, 2, 48, 2, -2))
sketch1.addConstraint(Sketcher.Constraint("Symmetric", 28, 2, 51, 2, -2))
sketch1.addConstraint(Sketcher.Constraint("Symmetric", 27, 2, 52, 2, -2))
sketch1.addConstraint(Sketcher.Constraint("Symmetric", 24, 2, 55, 2, -2))
sketch1.addConstraint(Sketcher.Constraint("Symmetric", 23, 2, 56, 2, -2))
sketch1.addConstraint(Sketcher.Constraint("Perpendicular", 1, 21))
sketch1.addConstraint(Sketcher.Constraint("Perpendicular", 3, 23))
sketch1.addConstraint(Sketcher.Constraint("Perpendicular", 4, 24))
sketch1.addConstraint(Sketcher.Constraint("Perpendicular", 5, 25))
sketch1.addConstraint(Sketcher.Constraint("Perpendicular", 7, 27))
sketch1.addConstraint(Sketcher.Constraint("Perpendicular", 8, 28))
sketch1.addConstraint(Sketcher.Constraint("Perpendicular", 9, 29))
sketch1.addConstraint(Sketcher.Constraint("Perpendicular", 11, 31))
sketch1.addConstraint(Sketcher.Constraint("Perpendicular", 13, 33))
sketch1.addConstraint(Sketcher.Constraint("Perpendicular", 15, 35))
sketch1.addConstraint(Sketcher.Constraint("Perpendicular", 17, 37))
sketch1.addConstraint(Sketcher.Constraint("Perpendicular", 19, 39))
sketch1.addConstraint(Sketcher.Constraint("Perpendicular", 21, 41))
sketch1.addConstraint(Sketcher.Constraint("Perpendicular", 23, 43))
sketch1.addConstraint(Sketcher.Constraint("Perpendicular", 25, 45))
sketch1.addConstraint(Sketcher.Constraint("Perpendicular", 27, 47))
sketch1.addConstraint(Sketcher.Constraint("Perpendicular", 29, 49))
sketch1.addConstraint(Sketcher.Constraint("Perpendicular", 31, 51))
sketch1.addConstraint(Sketcher.Constraint("Perpendicular", 33, 53))
sketch1.addConstraint(Sketcher.Constraint("Perpendicular", 35, 55))
sketch1.addConstraint(Sketcher.Constraint("Perpendicular", 37, 57))
sketch1.addConstraint(Sketcher.Constraint("Perpendicular", 39, 59))
sketch1.addConstraint(Sketcher.Constraint("Perpendicular", 41, 61))
sketch1.addConstraint(Sketcher.Constraint("Perpendicular", 43, 63))
sketch1.addConstraint(Sketcher.Constraint("Perpendicular", 45, 65))
sketch1.addConstraint(Sketcher.Constraint("Perpendicular", 47, 67))
sketch1.addConstraint(Sketcher.Constraint("Perpendicular", 49, 69))
sketch1.addConstraint(Sketcher.Constraint("Perpendicular", 51, 71))
sketch1.addConstraint(Sketcher.Constraint("Perpendicular", 53, 73))
sketch1.addConstraint(Sketcher.Constraint("Perpendicular", 55, 75))
sketch1.addConstraint(Sketcher.Constraint("Perpendicular", 57, 77))
sketch1.addConstraint(Sketcher.Constraint("Perpendicular", 59, 79))
sketch1.addConstraint(Sketcher.Constraint("Horizontal", 38, 1, 41, 2))
sketch1.addConstraint(Sketcher.Constraint("Horizontal", 37, 2, 42, 1))
sketch1.addConstraint(Sketcher.Constraint("Horizontal", 34, 1, 45, 2))
sketch1.addConstraint(Sketcher.Constraint("Horizontal", 33, 2, 46, 1))
sketch1.addConstraint(Sketcher.Constraint("Horizontal", 30, 1, 49, 2))
sketch1.addConstraint(Sketcher.Constraint("Horizontal", 21, 2, 58, 1))
sketch1.addConstraint(Sketcher.Constraint("Horizontal", 20, 2, 59, 2))
sketch1.addConstraint(Sketcher.Constraint("Horizontal", 19, 2, 60, 2))
sketch1.addConstraint(Sketcher.Constraint("Horizontal", 1, 2, 78, 1))
sketch1.addConstraint(Sketcher.Constraint("Equal", 40, 20))
sketch1.addConstraint(Sketcher.Constraint("Equal", 1, 3))
sketch1.addConstraint(Sketcher.Constraint("Equal", 3, 5))
sketch1.addConstraint(Sketcher.Constraint("Equal", 5, 7))
sketch1.addConstraint(Sketcher.Constraint("Equal", 4, 8))
sketch1.addConstraint(Sketcher.Constraint("Equal", 7, 9))
sketch1.addConstraint(Sketcher.Constraint("Equal", 9, 11))
sketch1.addConstraint(Sketcher.Constraint("Equal", 8, 12))
sketch1.addConstraint(Sketcher.Constraint("Equal", 11, 13))
sketch1.addConstraint(Sketcher.Constraint("Equal", 13, 15))
sketch1.addConstraint(Sketcher.Constraint("Equal", 12, 16))
sketch1.addConstraint(Sketcher.Constraint("Equal", 15, 17))
sketch1.addConstraint(Sketcher.Constraint("Equal", 17, 19))
sketch1.addConstraint(Sketcher.Constraint("Radius", 2, Q("15 mm")))
sketch1.addConstraint(Sketcher.Constraint("Angle", 4, Q("162 deg")))
sketch1.addConstraint(Sketcher.Constraint("Angle", 8, Q("144 deg")))
sketch1.addConstraint(Sketcher.Constraint("DistanceX", 0, 2, 0, 1, Q("1.25 mm")))
sketch1.addConstraint(Sketcher.Constraint("Distance", 4, Q("1.25 mm")))
sketch1.addConstraint(Sketcher.Constraint("DistanceX", 1, 2, -1, 1, Q("1.75 mm")))
sketch1.addConstraint(Sketcher.Constraint("DistanceX", 5, 2, -1, 1, Q("6.26795 mm")))
sketch1.addConstraint(Sketcher.Constraint("DistanceX", 6, 1, -1, 1, Q("7.34079 mm")))
sketch1.addConstraint(Sketcher.Constraint("DistanceX", 9, 2, -1, 1, Q("10.17235 mm")))
sketch1.addConstraint(Sketcher.Constraint("Distance", 1, Q("2.294695 mm")))
sketch1.addConstraint(Sketcher.Constraint("DistanceX", 2, 1, -1, 1, Q("2.939252 mm")))
pad1 = body.newObject("PartDesign::Pad", "Pad")
pad1.Profile = sketch1
pad1.Length = 10
pad1.Reversed = True

# Sketch on XZ plane
sketch2 = body.newObject("Sketcher::SketchObject", "Sketch001")
sketch2.AttachmentSupport = (doc.getObject("XZ_Plane"), [""])
sketch2.MapMode = "FlatFace"
sketch2.addGeometry(Part.Circle(Vector(0, 0, 0), Vector(0, 0, 1), 10), False)
sketch2.addConstraint(Sketcher.Constraint("Coincident", 0, 3, -1, 1))
sketch2.addConstraint(Sketcher.Constraint("Diameter", 0, Q("20 mm")))
pocket1 = body.newObject("PartDesign::Pocket", "Pocket")
pocket1.Profile = sketch2
pocket1.Length = 2.2

# Sketch on XZ plane
sketch3 = body.newObject("Sketcher::SketchObject", "Sketch002")
sketch3.AttachmentSupport = (doc.getObject("XZ_Plane"), [""])
sketch3.MapMode = "FlatFace"
sketch3.AttachmentOffset = App.Placement(Vector(0, 0, -2.2), App.Rotation())
sketch3.addGeometry(Part.Circle(Vector(0, 0, 0), Vector(0, 0, 1), 2.5), False)
sketch3.addConstraint(Sketcher.Constraint("Coincident", 0, 3, -1, 1))
sketch3.addConstraint(Sketcher.Constraint("Diameter", 0, Q("5 mm")))
pocket2 = body.newObject("PartDesign::Pocket", "Pocket001")
pocket2.Profile = sketch3
pocket2.Type = "ThroughAll"

doc.recompute()
